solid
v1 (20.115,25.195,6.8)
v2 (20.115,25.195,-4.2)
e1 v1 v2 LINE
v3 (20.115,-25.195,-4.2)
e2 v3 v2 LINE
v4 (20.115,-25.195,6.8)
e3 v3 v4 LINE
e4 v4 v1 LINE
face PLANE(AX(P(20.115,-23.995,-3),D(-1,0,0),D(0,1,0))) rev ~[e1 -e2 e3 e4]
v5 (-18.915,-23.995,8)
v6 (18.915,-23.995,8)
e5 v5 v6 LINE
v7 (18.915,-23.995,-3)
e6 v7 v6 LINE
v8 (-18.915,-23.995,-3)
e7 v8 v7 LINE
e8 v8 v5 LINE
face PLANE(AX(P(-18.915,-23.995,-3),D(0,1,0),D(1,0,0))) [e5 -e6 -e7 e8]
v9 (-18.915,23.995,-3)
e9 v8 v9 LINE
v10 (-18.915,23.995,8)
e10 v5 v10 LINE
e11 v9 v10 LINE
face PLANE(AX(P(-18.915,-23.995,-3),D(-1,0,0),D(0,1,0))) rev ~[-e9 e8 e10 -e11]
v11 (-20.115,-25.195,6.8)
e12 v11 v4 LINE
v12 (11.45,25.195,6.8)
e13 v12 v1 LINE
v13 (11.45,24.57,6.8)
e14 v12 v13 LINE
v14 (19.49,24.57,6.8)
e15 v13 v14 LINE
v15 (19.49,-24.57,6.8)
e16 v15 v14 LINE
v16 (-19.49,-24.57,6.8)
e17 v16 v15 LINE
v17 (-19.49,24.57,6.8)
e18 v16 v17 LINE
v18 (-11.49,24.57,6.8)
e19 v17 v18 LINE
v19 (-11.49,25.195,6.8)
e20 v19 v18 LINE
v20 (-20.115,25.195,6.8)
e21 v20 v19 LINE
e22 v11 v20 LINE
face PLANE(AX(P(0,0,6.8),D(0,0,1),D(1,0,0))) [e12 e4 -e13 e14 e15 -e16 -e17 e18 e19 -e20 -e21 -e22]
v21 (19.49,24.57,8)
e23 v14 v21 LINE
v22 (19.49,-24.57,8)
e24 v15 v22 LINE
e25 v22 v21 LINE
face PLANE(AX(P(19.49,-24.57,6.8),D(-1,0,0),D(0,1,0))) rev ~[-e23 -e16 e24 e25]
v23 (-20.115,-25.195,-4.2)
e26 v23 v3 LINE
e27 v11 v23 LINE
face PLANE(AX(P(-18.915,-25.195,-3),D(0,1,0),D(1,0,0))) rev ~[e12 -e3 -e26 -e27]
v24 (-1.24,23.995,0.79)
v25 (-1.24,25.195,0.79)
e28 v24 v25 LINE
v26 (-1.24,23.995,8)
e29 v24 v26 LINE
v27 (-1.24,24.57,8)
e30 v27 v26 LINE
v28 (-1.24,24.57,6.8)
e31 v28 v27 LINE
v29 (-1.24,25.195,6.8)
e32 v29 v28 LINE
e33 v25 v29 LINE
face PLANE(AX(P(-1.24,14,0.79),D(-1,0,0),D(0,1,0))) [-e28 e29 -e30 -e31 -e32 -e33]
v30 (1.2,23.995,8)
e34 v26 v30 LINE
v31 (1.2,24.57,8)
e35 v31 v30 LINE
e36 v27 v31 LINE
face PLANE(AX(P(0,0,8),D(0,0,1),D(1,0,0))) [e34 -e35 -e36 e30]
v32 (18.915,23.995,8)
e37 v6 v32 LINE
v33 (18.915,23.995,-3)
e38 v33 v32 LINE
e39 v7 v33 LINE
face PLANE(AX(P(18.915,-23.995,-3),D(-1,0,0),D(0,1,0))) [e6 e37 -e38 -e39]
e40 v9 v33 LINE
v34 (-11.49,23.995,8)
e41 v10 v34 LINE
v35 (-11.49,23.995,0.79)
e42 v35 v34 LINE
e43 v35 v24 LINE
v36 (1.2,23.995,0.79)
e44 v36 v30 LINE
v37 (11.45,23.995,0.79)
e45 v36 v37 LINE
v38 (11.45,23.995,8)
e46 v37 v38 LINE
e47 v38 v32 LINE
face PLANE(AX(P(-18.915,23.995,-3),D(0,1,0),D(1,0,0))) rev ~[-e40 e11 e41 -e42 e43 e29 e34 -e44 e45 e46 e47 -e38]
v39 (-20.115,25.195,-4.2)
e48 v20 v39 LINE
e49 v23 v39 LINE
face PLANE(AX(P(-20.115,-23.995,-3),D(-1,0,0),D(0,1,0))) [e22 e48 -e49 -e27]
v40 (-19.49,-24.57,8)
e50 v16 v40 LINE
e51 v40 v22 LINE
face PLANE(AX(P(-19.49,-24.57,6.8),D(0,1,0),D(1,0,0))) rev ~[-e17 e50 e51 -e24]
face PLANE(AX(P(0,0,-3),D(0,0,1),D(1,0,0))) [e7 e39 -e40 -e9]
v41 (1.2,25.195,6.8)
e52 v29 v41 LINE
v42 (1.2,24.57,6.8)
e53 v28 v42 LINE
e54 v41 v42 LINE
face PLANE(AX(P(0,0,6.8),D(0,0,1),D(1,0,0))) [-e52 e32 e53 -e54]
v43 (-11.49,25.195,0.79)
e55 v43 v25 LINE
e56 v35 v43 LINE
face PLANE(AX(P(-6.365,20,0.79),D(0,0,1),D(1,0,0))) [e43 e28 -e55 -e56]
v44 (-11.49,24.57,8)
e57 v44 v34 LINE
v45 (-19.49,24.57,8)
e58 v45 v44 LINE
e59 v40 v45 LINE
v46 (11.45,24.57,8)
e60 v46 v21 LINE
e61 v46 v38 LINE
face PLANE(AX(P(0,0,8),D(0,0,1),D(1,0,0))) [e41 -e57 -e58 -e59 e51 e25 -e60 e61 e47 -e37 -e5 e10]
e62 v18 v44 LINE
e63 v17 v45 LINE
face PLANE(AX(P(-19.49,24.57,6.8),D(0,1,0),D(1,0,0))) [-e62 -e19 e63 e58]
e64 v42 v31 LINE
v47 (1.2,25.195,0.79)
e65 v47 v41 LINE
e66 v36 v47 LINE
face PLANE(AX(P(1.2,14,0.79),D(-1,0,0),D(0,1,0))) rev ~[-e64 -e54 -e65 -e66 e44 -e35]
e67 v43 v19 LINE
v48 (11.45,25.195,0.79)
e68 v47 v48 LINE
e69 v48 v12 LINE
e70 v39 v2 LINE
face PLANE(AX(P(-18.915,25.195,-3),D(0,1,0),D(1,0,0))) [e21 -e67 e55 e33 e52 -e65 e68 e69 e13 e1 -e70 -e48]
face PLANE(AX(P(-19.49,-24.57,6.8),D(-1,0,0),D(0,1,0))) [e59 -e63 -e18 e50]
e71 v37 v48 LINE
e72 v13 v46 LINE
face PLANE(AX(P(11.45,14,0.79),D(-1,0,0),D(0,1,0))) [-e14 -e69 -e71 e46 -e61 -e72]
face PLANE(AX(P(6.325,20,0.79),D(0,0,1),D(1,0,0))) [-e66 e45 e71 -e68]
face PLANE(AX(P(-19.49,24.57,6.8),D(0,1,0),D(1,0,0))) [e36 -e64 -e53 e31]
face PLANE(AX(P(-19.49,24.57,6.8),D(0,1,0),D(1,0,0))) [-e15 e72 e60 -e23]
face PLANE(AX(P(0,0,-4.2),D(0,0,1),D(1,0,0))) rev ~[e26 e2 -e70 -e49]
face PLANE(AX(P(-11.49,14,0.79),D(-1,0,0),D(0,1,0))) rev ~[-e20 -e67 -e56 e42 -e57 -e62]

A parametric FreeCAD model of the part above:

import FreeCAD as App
import Part
import Sketcher
from FreeCAD import Vector
Q = App.Units.Quantity


def faces_at(feature, points):
    """Names of the faces that lie closest to the given points."""
    faces = feature.Shape.Faces
    near = lambda p: min(range(len(faces)), key=lambda i: faces[i].distToShape(Part.Vertex(*p))[0])
    return sorted({f"Face{near(p) + 1}" for p in points})


def add_polygon(sketch, points):
    """Adds a closed chain of lines whose ends are joined by coincident constraints."""
    first, n = sketch.GeometryCount, len(points)
    for a, b in zip(points, points[1:] + points[:1]):
        sketch.addGeometry(Part.LineSegment(App.Vector(*a, 0), App.Vector(*b, 0)), False)
    for i in range(n):
        sketch.addConstraint(Sketcher.Constraint("Coincident", first + i, 2, first + (i + 1) % n, 1))

doc = App.newDocument("Part")
body = doc.addObject("PartDesign::Body", "Body")

# Sketch on XY plane
sketch1 = body.newObject("Sketcher::SketchObject", "Sketch")
sketch1.AttachmentSupport = (doc.getObject("XY_Plane"), [""])
sketch1.MapMode = "FlatFace"
sketch1.AttachmentOffset = App.Placement(Vector(0, 0, 0.79), App.Rotation())
add_polygon(sketch1, [(-11, 26), (-11, 14), (-1, 14), (-1, 26)])  # lines 0-3
sketch1.addConstraint(Sketcher.Constraint("Vertical", 0))
sketch1.addConstraint(Sketcher.Constraint("Horizontal", 1))
sketch1.addConstraint(Sketcher.Constraint("Vertical", 2))
sketch1.addConstraint(Sketcher.Constraint("Horizontal", 3))
sketch1.addConstraint(Sketcher.Constraint("DistanceY", 0, 2, 0, 1, Q("12 mm")))
sketch1.addConstraint(Sketcher.Constraint("DistanceY", -1, 1, 0, 2, Q("14 mm")))
sketch1.addConstraint(Sketcher.Constraint("DistanceX", 1, 1, 1, 2, Q("10.25 mm")))
sketch1.addConstraint(Sketcher.Constraint("DistanceX", 0, 2, -1, 1, Q("11.49 mm")))
pad1 = body.newObject("PartDesign::Pad", "Pad")
pad1.Profile = sketch1
pad1.Length = 13
body2 = doc.addObject("PartDesign::Body", "Body001")

# Sketch on XY plane
sketch2 = body2.newObject("Sketcher::SketchObject", "Sketch001")
sketch2.AttachmentSupport = (doc.getObject("XY_Plane001"), [""])
sketch2.MapMode = "FlatFace"
sketch2.AttachmentOffset = App.Placement(Vector(0, 0, 0.79), App.Rotation())
add_polygon(sketch2, [(1, 26), (1, 14), (11, 14), (11, 26)])  # lines 0-3
sketch2.addConstraint(Sketcher.Constraint("Vertical", 0))
sketch2.addConstraint(Sketcher.Constraint("Horizontal", 1))
sketch2.addConstraint(Sketcher.Constraint("Vertical", 2))
sketch2.addConstraint(Sketcher.Constraint("Horizontal", 3))
sketch2.addConstraint(Sketcher.Constraint("DistanceY", 0, 2, 0, 1, Q("12 mm")))
sketch2.addConstraint(Sketcher.Constraint("DistanceY", -1, 1, 0, 2, Q("14 mm")))
sketch2.addConstraint(Sketcher.Constraint("DistanceX", 1, 1, 1, 2, Q("10.25 mm")))
sketch2.addConstraint(Sketcher.Constraint("DistanceX", -1, 1, 0, 2, Q("1.2 mm")))
pad2 = body2.newObject("PartDesign::Pad", "Pad001")
pad2.Profile = sketch2
pad2.Length = 13
body3 = doc.addObject("PartDesign::Body", "Body002")

# Sketch on XY plane
sketch3 = body3.newObject("Sketcher::SketchObject", "Sketch002")
sketch3.AttachmentSupport = (doc.getObject("XY_Plane002"), [""])
sketch3.MapMode = "FlatFace"
add_polygon(sketch3, [(-19, 24), (-19, -24), (19, -24), (19, 24)])  # lines 0-3
sketch3.addConstraint(Sketcher.Constraint("Vertical", 0))
sketch3.addConstraint(Sketcher.Constraint("Horizontal", 1))
sketch3.addConstraint(Sketcher.Constraint("Vertical", 2))
sketch3.addConstraint(Sketcher.Constraint("Horizontal", 3))
sketch3.addConstraint(Sketcher.Constraint("DistanceY", 0, 2, -1, 1, Q("24 mm")))
sketch3.addConstraint(Sketcher.Constraint("DistanceX", 1, 1, 1, 2, Q("37.83 mm")))
sketch3.addConstraint(Sketcher.Constraint("DistanceY", 0, 2, 0, 1, Q("47.99 mm")))
sketch3.addConstraint(Sketcher.Constraint("DistanceX", 0, 2, -1, 1, Q("18.91 mm")))
pad3 = body3.newObject("PartDesign::Pad", "Pad002")
pad3.Profile = sketch3
pad3.Length = 1.2
body4 = doc.addObject("PartDesign::Body", "Body003")

# Sketch on XY plane
sketch4 = body4.newObject("Sketcher::SketchObject", "Sketch003")
sketch4.AttachmentSupport = (doc.getObject("XY_Plane003"), [""])
sketch4.MapMode = "FlatFace"
add_polygon(sketch4, [(-19, 25), (-19, -25), (19, -25), (19, 25)])  # lines 0-3
sketch4.addConstraint(Sketcher.Constraint("Vertical", 0))
sketch4.addConstraint(Sketcher.Constraint("Horizontal", 1))
sketch4.addConstraint(Sketcher.Constraint("Vertical", 2))
sketch4.addConstraint(Sketcher.Constraint("Horizontal", 3))
sketch4.addConstraint(Sketcher.Constraint("Symmetric", 0, 2, 2, 2, -1, 1))
sketch4.addConstraint(Sketcher.Constraint("DistanceX", 1, 1, 1, 2, Q("38.98 mm")))
sketch4.addConstraint(Sketcher.Constraint("DistanceY", 0, 2, 0, 1, Q("49.14 mm")))
pad4 = body4.newObject("PartDesign::Pad", "Pad003")
pad4.Profile = sketch4
pad4.Length = 1.2
doc.recompute()

boolean = body4.newObject("PartDesign::Boolean", "Boolean")
boolean.Type = "Cut"
boolean.addObjects([body3])
body5 = doc.addObject("PartDesign::Body", "Body004")

# Sketch on XY plane
sketch5 = body5.newObject("Sketcher::SketchObject", "Sketch004")
sketch5.AttachmentSupport = (doc.getObject("XY_Plane004"), [""])
sketch5.MapMode = "FlatFace"
add_polygon(sketch5, [(-19, 24), (-19, -24), (19, -24), (19, 24)])  # lines 0-3
sketch5.addConstraint(Sketcher.Constraint("Vertical", 0))
sketch5.addConstraint(Sketcher.Constraint("Horizontal", 1))
sketch5.addConstraint(Sketcher.Constraint("Vertical", 2))
sketch5.addConstraint(Sketcher.Constraint("Horizontal", 3))
sketch5.addConstraint(Sketcher.Constraint("DistanceY", 0, 2, -1, 1, Q("24 mm")))
sketch5.addConstraint(Sketcher.Constraint("DistanceX", 1, 1, 1, 2, Q("37.83 mm")))
sketch5.addConstraint(Sketcher.Constraint("DistanceY", 0, 2, 0, 1, Q("47.99 mm")))
sketch5.addConstraint(Sketcher.Constraint("DistanceX", 0, 2, -1, 1, Q("18.91 mm")))
pad5 = body5.newObject("PartDesign::Pad", "Pad004")
pad5.Profile = sketch5
pad5.Length = 1.2
body6 = doc.addObject("PartDesign::Body", "Body005")

# Sketch on XY plane
sketch6 = body6.newObject("Sketcher::SketchObject", "Sketch005")
sketch6.AttachmentSupport = (doc.getObject("XY_Plane005"), [""])
sketch6.MapMode = "FlatFace"
add_polygon(sketch6, [(-20, 25), (-20, -25), (20, -25), (20, 25)])  # lines 0-3
sketch6.addConstraint(Sketcher.Constraint("Vertical", 0))
sketch6.addConstraint(Sketcher.Constraint("Horizontal", 1))
sketch6.addConstraint(Sketcher.Constraint("Vertical", 2))
sketch6.addConstraint(Sketcher.Constraint("Horizontal", 3))
sketch6.addConstraint(Sketcher.Constraint("Symmetric", 0, 2, 2, 2, -1, 1))
sketch6.addConstraint(Sketcher.Constraint("DistanceX", 1, 1, 1, 2, Q("40.25 mm")))
sketch6.addConstraint(Sketcher.Constraint("DistanceY", 0, 2, 0, 1, Q("50.41 mm")))
pad6 = body6.newObject("PartDesign::Pad", "Pad005")
pad6.Profile = sketch6
pad6.Length = 1.2
doc.recompute()

boolean2 = body6.newObject("PartDesign::Boolean", "Boolean001")
boolean2.Type = "Cut"
boolean2.addObjects([body5])
doc.recompute()

boolean3 = body6.newObject("PartDesign::Boolean", "Boolean002")
boolean3.Type = "Cut"
boolean3.addObjects([body4])
body7 = doc.addObject("PartDesign::Body", "Body006")
doc.recompute()

body6.Placement = App.Placement(Vector(0, 0, 6.8), App.Rotation(Vector(0, 0, 1), 0))
boolean4 = body7.newObject("PartDesign::Boolean", "Boolean003")
boolean4.Type = "Fuse"
boolean4.addObjects([body6])
body8 = doc.addObject("PartDesign::Body", "Body007")

# Sketch on XY plane
sketch7 = body8.newObject("Sketcher::SketchObject", "Sketch006")
sketch7.AttachmentSupport = (doc.getObject("XY_Plane007"), [""])
sketch7.MapMode = "FlatFace"
sketch7.AttachmentOffset = App.Placement(Vector(0, 0, -3), App.Rotation())
add_polygon(sketch7, [(-19, 24), (-19, -24), (19, -24), (19, 24)])  # lines 0-3
sketch7.addConstraint(Sketcher.Constraint("Vertical", 0))
sketch7.addConstraint(Sketcher.Constraint("Horizontal", 1))
sketch7.addConstraint(Sketcher.Constraint("Vertical", 2))
sketch7.addConstraint(Sketcher.Constraint("Horizontal", 3))
sketch7.addConstraint(Sketcher.Constraint("Symmetric", 0, 2, 2, 2, -1, 1))
sketch7.addConstraint(Sketcher.Constraint("DistanceX", 1, 1, 1, 2, Q("37.83 mm")))
sketch7.addConstraint(Sketcher.Constraint("DistanceY", 0, 2, 0, 1, Q("47.99 mm")))
pad7 = body8.newObject("PartDesign::Pad", "Pad006")
pad7.Profile = sketch7
pad7.Length = 11
body9 = doc.addObject("PartDesign::Body", "Body008")
doc.recompute()

body8.Placement = App.Placement(Vector(18.915, 23.995, 3), App.Rotation(Vector(0, 0, 1), 0))
boolean5 = body9.newObject("PartDesign::Boolean", "Boolean004")
boolean5.Type = "Fuse"
boolean5.addObjects([body8])
doc.recompute()

thickness = body9.newObject("PartDesign::Thickness", "Thickness")
thickness.Base = (boolean5, faces_at(boolean5, [(18.915, 23.995, 11)]))
thickness.Value = 1.2
thickness.Reversed = False
thickness.Join = "Intersection"
body10 = doc.addObject("PartDesign::Body", "Body009")
doc.recompute()

body9.Placement = App.Placement(Vector(-18.915, -23.995, -3), App.Rotation(Vector(0, 0, 1), 0))
boolean6 = body10.newObject("PartDesign::Boolean", "Boolean005")
boolean6.Type = "Fuse"
boolean6.addObjects([body9])
doc.recompute()

boolean7 = body10.newObject("PartDesign::Boolean", "Boolean006")
boolean7.Type = "Cut"
boolean7.addObjects([body7])
doc.recompute()

boolean8 = body10.newObject("PartDesign::Boolean", "Boolean007")
boolean8.Type = "Cut"
boolean8.addObjects([body2])
doc.recompute()

boolean9 = body10.newObject("PartDesign::Boolean", "Boolean008")
boolean9.Type = "Cut"
boolean9.addObjects([body])

doc.recompute()
